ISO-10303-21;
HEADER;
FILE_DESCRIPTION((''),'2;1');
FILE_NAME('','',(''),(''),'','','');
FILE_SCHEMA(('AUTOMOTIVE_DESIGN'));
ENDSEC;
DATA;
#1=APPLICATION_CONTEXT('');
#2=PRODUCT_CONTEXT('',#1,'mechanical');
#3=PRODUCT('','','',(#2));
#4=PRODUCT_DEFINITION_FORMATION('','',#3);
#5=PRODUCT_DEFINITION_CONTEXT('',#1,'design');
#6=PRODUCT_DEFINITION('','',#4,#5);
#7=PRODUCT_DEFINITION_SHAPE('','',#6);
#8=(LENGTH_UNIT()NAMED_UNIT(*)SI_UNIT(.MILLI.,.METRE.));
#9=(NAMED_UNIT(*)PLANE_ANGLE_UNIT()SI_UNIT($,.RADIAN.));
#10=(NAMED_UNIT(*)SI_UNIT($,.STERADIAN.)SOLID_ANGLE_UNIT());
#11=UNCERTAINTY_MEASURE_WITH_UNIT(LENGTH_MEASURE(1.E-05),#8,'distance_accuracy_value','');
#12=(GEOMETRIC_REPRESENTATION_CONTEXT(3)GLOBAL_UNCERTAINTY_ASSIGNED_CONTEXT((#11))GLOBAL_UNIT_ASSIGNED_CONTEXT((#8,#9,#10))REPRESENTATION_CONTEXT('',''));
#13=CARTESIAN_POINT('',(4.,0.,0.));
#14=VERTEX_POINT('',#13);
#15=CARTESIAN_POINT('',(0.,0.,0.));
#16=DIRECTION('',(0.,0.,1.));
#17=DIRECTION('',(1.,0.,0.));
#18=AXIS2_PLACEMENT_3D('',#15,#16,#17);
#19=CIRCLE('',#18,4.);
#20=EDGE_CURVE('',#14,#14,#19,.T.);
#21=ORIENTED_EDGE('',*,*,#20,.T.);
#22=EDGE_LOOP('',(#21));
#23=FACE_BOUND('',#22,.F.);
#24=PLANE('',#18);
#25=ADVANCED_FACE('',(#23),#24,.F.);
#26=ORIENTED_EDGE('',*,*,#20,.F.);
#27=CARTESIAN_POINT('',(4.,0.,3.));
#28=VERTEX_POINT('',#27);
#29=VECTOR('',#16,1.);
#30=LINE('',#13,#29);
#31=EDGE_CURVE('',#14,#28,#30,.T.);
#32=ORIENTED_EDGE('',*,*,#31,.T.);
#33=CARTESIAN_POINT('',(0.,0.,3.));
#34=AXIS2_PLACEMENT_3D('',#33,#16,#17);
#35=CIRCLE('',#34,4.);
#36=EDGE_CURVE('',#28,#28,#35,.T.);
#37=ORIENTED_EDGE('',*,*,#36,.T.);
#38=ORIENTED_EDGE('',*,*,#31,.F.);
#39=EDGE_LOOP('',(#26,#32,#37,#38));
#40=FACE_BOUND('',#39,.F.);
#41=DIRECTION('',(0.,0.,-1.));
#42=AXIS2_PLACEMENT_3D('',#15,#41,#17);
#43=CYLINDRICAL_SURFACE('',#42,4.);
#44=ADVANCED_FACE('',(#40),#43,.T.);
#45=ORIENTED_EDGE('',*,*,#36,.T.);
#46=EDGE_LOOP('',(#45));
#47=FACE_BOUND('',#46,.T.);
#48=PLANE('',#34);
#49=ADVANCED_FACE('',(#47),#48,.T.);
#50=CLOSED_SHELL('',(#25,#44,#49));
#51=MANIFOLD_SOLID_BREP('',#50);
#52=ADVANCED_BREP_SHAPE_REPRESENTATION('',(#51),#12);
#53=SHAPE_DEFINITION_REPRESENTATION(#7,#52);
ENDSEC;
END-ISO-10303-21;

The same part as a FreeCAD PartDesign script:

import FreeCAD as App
import Part
import Sketcher

V = App.Vector

doc = App.newDocument("Part")
body = doc.addObject("PartDesign::Body", "Body")

sketch1 = body.newObject("Sketcher::SketchObject", "Sketch")
sketch1.AttachmentSupport = (doc.getObject("XY_Plane"), [""])
sketch1.MapMode = "FlatFace"
sketch1.addGeometry(Part.Circle(V(0, 0, 0), V(0, 0, 1), 4), False)
sketch1.addConstraint([
    Sketcher.Constraint("Coincident", 0, 3, -1, 1),
    Sketcher.Constraint("Diameter", 0, 8.0),
])
pad1 = body.newObject("PartDesign::Pad", "Pad")
pad1.Profile = sketch1
pad1.Length = 3

doc.recompute()
